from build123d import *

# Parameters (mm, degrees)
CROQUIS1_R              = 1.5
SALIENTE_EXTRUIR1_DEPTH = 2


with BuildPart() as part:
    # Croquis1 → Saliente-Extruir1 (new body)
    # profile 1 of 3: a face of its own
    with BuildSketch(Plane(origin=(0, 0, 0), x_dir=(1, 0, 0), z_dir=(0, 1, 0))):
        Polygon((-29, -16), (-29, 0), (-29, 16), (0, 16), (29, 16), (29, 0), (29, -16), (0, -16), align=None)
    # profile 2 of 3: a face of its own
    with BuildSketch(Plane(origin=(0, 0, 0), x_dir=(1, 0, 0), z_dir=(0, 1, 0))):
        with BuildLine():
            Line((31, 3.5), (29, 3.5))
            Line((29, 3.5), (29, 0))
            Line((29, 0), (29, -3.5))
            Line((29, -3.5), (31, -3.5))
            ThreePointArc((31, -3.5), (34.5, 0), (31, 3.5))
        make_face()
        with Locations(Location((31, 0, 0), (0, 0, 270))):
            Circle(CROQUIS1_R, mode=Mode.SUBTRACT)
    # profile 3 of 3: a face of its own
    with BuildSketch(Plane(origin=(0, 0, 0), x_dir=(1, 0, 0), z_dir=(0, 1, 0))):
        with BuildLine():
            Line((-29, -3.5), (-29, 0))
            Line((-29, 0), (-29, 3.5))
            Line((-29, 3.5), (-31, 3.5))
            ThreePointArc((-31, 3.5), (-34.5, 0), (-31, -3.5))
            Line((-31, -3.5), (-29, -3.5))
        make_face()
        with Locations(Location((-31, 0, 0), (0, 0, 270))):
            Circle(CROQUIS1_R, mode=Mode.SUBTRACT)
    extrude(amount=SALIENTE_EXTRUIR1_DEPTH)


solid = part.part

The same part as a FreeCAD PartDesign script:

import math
import FreeCAD as App
import Part
import Sketcher

V = App.Vector

doc = App.newDocument("Part")
body = doc.addObject("PartDesign::Body", "Body")

sketch1 = doc.addObject("Sketcher::SketchObject", "Sketch")
body.addObject(sketch1)
sketch1.AttachmentSupport = (doc.XZ_Plane, [""])
sketch1.MapMode = "FlatFace"
sketch1.addGeometry([
    Part.LineSegment(V(-29, -16, 0), V(-29, -3.5, 0)),
    Part.LineSegment(V(-29, -3.5, 0), V(-31, -3.5, 0)),
    Part.ArcOfCircle(Part.Circle(V(-31, 0, 0), V(0, 0, 1), 3.5), math.radians(90), math.radians(270)),
    Part.LineSegment(V(-31, 3.5, 0), V(-29, 3.5, 0)),
    Part.LineSegment(V(-29, 3.5, 0), V(-29, 16, 0)),
    Part.LineSegment(V(-29, 16, 0), V(29, 16, 0)),
    Part.LineSegment(V(29, 16, 0), V(29, 3.5, 0)),
    Part.LineSegment(V(29, 3.5, 0), V(31, 3.5, 0)),
    Part.ArcOfCircle(Part.Circle(V(31, 0, 0), V(0, 0, 1), 3.5), math.radians(-90), math.radians(90)),
    Part.LineSegment(V(31, -3.5, 0), V(29, -3.5, 0)),
    Part.LineSegment(V(29, -3.5, 0), V(29, -16, 0)),
    Part.LineSegment(V(29, -16, 0), V(-29, -16, 0)),
    Part.Circle(V(-31, 0, 0), V(0, 0, 1), 1.5),
    Part.Circle(V(31, 0, 0), V(0, 0, 1), 1.5),
], False)
sketch1.addConstraint([
    Sketcher.Constraint("Coincident", 0, 2, 1, 1),
    Sketcher.Constraint("Tangent", 1, 2, 2, 2),
    Sketcher.Constraint("Tangent", 2, 1, 3, 1),
    Sketcher.Constraint("Coincident", 3, 2, 4, 1),
    Sketcher.Constraint("Coincident", 4, 2, 5, 1),
    Sketcher.Constraint("Coincident", 5, 2, 6, 1),
    Sketcher.Constraint("Coincident", 6, 2, 7, 1),
    Sketcher.Constraint("Tangent", 7, 2, 8, 2),
    Sketcher.Constraint("Tangent", 8, 1, 9, 1),
    Sketcher.Constraint("Coincident", 9, 2, 10, 1),
    Sketcher.Constraint("Coincident", 10, 2, 11, 1),
    Sketcher.Constraint("Coincident", 11, 2, 0, 1),
    Sketcher.Constraint("Vertical", 0),
    Sketcher.Constraint("Horizontal", 1),
    Sketcher.Constraint("Horizontal", 3),
    Sketcher.Constraint("Vertical", 4),
    Sketcher.Constraint("Horizontal", 5),
    Sketcher.Constraint("Vertical", 6),
    Sketcher.Constraint("Horizontal", 7),
    Sketcher.Constraint("Horizontal", 9),
    Sketcher.Constraint("Vertical", 10),
    Sketcher.Constraint("Horizontal", 11),
    Sketcher.Constraint("Coincident", 12, 3, 2, 3),
    Sketcher.Constraint("Coincident", 13, 3, 8, 3),
    Sketcher.Constraint("Equal", 2, 8),
    Sketcher.Constraint("Equal", 12, 13),
    Sketcher.Constraint("Symmetric", 2, 3, 8, 3, -1, 1),
    Sketcher.Constraint("Symmetric", 4, 2, 10, 2, -1, 1),
    Sketcher.Constraint("Symmetric", 3, 2, 6, 2, -2),
    Sketcher.Constraint("Vertical", 0, 2, 3, 2),
    Sketcher.Constraint("Diameter", 12, 3.0),
    Sketcher.Constraint("Radius", 2, 3.5),
    Sketcher.Constraint("DistanceX", 1, 2, 1, 1, 2.0),
    Sketcher.Constraint("DistanceX", 5, 1, 5, 2, 58.0),
    Sketcher.Constraint("DistanceY", 0, 1, 0, 2, 12.5),
])
pad1 = doc.addObject("PartDesign::Pad", "Pad")
body.addObject(pad1)
pad1.Profile = sketch1
pad1.Length = 2
pad1.Reversed = True

doc.recompute()
